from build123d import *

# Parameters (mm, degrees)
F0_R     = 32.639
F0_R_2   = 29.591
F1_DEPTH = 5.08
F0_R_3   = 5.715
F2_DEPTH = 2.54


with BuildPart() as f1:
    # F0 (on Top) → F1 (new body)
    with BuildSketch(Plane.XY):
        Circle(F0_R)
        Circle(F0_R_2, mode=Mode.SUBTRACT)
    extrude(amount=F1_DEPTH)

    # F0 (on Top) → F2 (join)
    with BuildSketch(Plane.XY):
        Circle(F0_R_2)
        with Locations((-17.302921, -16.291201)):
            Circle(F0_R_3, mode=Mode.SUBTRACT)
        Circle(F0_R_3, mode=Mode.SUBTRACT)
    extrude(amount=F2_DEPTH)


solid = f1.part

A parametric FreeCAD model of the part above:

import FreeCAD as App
import Part
import Sketcher

V = App.Vector
Q = App.Units.Quantity

doc = App.newDocument("Part")
params = doc.addObject("Spreadsheet::Sheet", "Params")
for row, (alias, value) in enumerate([
    ("sketch1_diameter", "2.57 in"),
    ("sketch1_diameter2", "2.33 in"),
    ("pad1_length", "0.2 in"),
    ("sketch2_diameter", "2.33 in"),
    ("sketch2_diameter2", "0.45 in"),
    ("pad2_length", "0.1 in"),
], start=1):
    params.set(f"A{row}", alias)
    params.set(f"B{row}", "=" + value)
    params.setAlias(f"B{row}", alias)

body = doc.addObject("PartDesign::Body", "Body")

# Sketch on XY plane
sketch1 = doc.addObject("Sketcher::SketchObject", "Sketch")
body.addObject(sketch1)
sketch1.AttachmentSupport = (doc.XY_Plane, [""])
sketch1.MapMode = "FlatFace"
sketch1.addGeometry([
    Part.Circle(V(0, 0, 0), V(0, 0, 1), 33),
    Part.Circle(V(0, 0, 0), V(0, 0, 1), 30),
], False)
sketch1.addConstraint([
    Sketcher.Constraint("Coincident", 0, 3, -1, 1),
    Sketcher.Constraint("Coincident", 1, 3, -1, 1),
    Sketcher.Constraint("Diameter", 0, Q("2.57 in")),
    Sketcher.Constraint("Diameter", 1, Q("2.33 in")),
])
sketch1.setExpression("Constraints[2]", "Params.sketch1_diameter")
sketch1.setExpression("Constraints[3]", "Params.sketch1_diameter2")
pad1 = doc.addObject("PartDesign::Pad", "Pad")
body.addObject(pad1)
pad1.Profile = sketch1
pad1.setExpression("Length", "Params.pad1_length")

# Sketch on XY plane
sketch2 = doc.addObject("Sketcher::SketchObject", "Sketch001")
body.addObject(sketch2)
sketch2.AttachmentSupport = (doc.XY_Plane, [""])
sketch2.MapMode = "FlatFace"
sketch2.addGeometry([
    Part.Circle(V(0, 0, 0), V(0, 0, 1), 30),
    Part.Circle(V(-17, -16, 0), V(0, 0, 1), 6),
    Part.Circle(V(0, 0, 0), V(0, 0, 1), 6),
], False)
sketch2.addConstraint([
    Sketcher.Constraint("Coincident", 0, 3, -1, 1),
    Sketcher.Constraint("Coincident", 2, 3, -1, 1),
    Sketcher.Constraint("Equal", 1, 2),
    Sketcher.Constraint("Diameter", 0, Q("2.33 in")),
    Sketcher.Constraint("Diameter", 1, Q("0.45 in")),
    Sketcher.Constraint("DistanceY", 1, 3, -1, 1, Q("16.291201 mm")),
    Sketcher.Constraint("DistanceX", 1, 3, -1, 1, Q("17.302921 mm")),
])
sketch2.setExpression("Constraints[3]", "Params.sketch2_diameter")
sketch2.setExpression("Constraints[4]", "Params.sketch2_diameter2")
pad2 = doc.addObject("PartDesign::Pad", "Pad001")
body.addObject(pad2)
pad2.Profile = sketch2
pad2.setExpression("Length", "Params.pad2_length")

doc.recompute()
